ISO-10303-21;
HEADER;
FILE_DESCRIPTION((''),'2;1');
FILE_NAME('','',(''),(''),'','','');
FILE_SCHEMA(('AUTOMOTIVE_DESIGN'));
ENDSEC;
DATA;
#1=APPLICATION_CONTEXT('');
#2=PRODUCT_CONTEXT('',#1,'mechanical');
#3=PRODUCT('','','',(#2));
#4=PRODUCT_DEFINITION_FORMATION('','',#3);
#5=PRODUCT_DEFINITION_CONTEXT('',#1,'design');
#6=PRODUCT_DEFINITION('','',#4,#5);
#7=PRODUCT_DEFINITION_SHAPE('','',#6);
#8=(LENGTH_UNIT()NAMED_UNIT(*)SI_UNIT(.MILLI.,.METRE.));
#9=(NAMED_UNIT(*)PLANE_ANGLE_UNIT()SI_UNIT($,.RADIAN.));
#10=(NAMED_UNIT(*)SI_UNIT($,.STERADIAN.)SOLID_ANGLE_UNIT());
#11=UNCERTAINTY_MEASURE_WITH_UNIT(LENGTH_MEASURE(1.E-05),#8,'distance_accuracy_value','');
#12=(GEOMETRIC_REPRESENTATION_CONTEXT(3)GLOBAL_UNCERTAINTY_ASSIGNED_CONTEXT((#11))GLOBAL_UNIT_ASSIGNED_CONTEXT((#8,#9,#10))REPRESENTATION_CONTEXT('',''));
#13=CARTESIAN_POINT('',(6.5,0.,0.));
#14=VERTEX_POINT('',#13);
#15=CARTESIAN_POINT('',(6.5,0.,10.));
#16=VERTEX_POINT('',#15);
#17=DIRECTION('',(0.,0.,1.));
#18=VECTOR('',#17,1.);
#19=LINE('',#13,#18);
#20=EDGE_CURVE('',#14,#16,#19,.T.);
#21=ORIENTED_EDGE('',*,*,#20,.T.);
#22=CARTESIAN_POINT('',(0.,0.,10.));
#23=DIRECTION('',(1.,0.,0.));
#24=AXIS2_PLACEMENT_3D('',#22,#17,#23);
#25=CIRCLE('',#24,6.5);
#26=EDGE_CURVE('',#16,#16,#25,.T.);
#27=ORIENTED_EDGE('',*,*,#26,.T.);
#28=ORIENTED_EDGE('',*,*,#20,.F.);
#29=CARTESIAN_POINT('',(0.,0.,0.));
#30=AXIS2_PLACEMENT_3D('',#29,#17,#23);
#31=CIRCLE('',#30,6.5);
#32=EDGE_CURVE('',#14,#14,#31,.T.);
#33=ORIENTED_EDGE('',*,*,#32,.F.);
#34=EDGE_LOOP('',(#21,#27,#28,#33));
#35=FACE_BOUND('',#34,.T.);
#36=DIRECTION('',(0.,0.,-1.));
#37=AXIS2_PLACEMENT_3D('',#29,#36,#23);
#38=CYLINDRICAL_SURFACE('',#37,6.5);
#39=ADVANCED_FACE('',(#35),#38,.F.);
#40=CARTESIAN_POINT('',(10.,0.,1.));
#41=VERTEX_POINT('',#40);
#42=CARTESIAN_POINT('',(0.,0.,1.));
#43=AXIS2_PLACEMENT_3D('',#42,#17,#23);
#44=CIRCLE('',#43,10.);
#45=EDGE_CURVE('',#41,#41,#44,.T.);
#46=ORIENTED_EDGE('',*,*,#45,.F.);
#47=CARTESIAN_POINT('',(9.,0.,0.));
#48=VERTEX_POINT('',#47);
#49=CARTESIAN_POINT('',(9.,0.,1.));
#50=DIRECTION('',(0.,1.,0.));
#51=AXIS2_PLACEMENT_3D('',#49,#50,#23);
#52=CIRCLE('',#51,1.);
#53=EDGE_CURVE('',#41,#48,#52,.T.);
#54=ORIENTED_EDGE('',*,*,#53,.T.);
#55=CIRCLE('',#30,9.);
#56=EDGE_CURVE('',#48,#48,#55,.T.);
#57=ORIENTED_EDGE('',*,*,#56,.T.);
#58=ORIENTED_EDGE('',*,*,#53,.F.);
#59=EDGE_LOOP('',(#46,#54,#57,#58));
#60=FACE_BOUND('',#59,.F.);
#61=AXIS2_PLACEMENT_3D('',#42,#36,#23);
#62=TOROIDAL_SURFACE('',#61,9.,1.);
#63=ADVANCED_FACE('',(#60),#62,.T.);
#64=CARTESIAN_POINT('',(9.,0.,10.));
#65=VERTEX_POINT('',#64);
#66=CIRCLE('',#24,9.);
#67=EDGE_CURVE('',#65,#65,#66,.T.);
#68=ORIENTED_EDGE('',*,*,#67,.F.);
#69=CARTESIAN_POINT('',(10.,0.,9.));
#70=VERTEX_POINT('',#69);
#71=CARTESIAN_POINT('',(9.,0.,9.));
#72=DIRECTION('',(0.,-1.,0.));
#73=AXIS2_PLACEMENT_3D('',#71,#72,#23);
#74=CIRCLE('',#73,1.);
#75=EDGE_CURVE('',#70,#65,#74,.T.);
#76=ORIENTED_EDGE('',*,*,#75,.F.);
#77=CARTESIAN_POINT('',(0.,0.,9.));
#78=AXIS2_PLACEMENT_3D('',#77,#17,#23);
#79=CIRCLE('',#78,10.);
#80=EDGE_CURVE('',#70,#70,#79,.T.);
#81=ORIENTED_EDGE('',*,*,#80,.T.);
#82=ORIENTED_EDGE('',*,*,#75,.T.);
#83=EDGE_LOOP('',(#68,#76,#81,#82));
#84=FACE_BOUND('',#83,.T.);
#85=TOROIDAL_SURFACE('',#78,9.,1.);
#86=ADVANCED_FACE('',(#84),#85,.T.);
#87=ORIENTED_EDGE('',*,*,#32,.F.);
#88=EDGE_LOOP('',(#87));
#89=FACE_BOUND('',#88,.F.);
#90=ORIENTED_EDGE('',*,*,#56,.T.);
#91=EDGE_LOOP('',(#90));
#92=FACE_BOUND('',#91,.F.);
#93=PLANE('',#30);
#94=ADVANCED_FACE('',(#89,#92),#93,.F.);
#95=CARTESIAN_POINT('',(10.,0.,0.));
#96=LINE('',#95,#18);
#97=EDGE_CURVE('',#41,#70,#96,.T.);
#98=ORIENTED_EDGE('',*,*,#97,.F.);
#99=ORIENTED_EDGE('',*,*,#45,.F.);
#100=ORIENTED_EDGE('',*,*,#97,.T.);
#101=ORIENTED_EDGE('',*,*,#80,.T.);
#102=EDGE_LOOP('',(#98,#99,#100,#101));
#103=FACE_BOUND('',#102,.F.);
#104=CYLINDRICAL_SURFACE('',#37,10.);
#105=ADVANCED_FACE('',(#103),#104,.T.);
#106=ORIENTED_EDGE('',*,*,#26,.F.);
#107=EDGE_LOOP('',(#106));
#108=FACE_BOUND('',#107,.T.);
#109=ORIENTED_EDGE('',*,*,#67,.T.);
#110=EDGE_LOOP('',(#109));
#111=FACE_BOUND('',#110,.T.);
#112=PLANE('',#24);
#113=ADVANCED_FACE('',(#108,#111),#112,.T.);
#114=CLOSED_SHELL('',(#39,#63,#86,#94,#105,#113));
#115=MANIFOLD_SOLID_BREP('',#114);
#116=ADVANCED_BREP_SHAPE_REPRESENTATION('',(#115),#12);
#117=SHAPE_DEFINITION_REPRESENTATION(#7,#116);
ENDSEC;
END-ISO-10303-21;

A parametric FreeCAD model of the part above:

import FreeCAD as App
import Part
import Sketcher
Q = App.Units.Quantity


def edges_at(feature, points):
    """Names of the edges that pass closest to the given points."""
    edges = feature.Shape.Edges
    near = lambda p: min(range(len(edges)), key=lambda i: edges[i].distToShape(Part.Vertex(*p))[0])
    return sorted({f"Edge{near(p) + 1}" for p in points})

doc = App.newDocument("Part")
body = doc.addObject("PartDesign::Body", "Body")

sketch1 = body.newObject("Sketcher::SketchObject", "Sketch")
sketch1.AttachmentSupport = (doc.getObject("XY_Plane"), [""])
sketch1.MapMode = "FlatFace"
sketch1.addGeometry([
    Part.Circle(App.Vector(0, 0, 0), App.Vector(0, 0, 1), 10),
    Part.Circle(App.Vector(0, 0, 0), App.Vector(0, 0, 1), 6.5),
], False)
sketch1.addConstraint([
    Sketcher.Constraint("Coincident", 0, 3, -1, 1),
    Sketcher.Constraint("Coincident", 1, 3, -1, 1),
    Sketcher.Constraint("Diameter", 0, Q("20 mm")),
    Sketcher.Constraint("Diameter", 1, Q("13 mm")),
])
pad1 = body.newObject("PartDesign::Pad", "Pad")
pad1.Profile = sketch1
pad1.Length = 10
doc.recompute()

fillet = body.newObject("PartDesign::Fillet", "Fillet")
fillet.Base = (pad1, edges_at(pad1, [(-10, 0, 10)]))
fillet.Radius = 1
doc.recompute()

fillet2 = body.newObject("PartDesign::Fillet", "Fillet001")
fillet2.Base = (fillet, edges_at(fillet, [(-10, 0, 0)]))
fillet2.Radius = 1

doc.recompute()
